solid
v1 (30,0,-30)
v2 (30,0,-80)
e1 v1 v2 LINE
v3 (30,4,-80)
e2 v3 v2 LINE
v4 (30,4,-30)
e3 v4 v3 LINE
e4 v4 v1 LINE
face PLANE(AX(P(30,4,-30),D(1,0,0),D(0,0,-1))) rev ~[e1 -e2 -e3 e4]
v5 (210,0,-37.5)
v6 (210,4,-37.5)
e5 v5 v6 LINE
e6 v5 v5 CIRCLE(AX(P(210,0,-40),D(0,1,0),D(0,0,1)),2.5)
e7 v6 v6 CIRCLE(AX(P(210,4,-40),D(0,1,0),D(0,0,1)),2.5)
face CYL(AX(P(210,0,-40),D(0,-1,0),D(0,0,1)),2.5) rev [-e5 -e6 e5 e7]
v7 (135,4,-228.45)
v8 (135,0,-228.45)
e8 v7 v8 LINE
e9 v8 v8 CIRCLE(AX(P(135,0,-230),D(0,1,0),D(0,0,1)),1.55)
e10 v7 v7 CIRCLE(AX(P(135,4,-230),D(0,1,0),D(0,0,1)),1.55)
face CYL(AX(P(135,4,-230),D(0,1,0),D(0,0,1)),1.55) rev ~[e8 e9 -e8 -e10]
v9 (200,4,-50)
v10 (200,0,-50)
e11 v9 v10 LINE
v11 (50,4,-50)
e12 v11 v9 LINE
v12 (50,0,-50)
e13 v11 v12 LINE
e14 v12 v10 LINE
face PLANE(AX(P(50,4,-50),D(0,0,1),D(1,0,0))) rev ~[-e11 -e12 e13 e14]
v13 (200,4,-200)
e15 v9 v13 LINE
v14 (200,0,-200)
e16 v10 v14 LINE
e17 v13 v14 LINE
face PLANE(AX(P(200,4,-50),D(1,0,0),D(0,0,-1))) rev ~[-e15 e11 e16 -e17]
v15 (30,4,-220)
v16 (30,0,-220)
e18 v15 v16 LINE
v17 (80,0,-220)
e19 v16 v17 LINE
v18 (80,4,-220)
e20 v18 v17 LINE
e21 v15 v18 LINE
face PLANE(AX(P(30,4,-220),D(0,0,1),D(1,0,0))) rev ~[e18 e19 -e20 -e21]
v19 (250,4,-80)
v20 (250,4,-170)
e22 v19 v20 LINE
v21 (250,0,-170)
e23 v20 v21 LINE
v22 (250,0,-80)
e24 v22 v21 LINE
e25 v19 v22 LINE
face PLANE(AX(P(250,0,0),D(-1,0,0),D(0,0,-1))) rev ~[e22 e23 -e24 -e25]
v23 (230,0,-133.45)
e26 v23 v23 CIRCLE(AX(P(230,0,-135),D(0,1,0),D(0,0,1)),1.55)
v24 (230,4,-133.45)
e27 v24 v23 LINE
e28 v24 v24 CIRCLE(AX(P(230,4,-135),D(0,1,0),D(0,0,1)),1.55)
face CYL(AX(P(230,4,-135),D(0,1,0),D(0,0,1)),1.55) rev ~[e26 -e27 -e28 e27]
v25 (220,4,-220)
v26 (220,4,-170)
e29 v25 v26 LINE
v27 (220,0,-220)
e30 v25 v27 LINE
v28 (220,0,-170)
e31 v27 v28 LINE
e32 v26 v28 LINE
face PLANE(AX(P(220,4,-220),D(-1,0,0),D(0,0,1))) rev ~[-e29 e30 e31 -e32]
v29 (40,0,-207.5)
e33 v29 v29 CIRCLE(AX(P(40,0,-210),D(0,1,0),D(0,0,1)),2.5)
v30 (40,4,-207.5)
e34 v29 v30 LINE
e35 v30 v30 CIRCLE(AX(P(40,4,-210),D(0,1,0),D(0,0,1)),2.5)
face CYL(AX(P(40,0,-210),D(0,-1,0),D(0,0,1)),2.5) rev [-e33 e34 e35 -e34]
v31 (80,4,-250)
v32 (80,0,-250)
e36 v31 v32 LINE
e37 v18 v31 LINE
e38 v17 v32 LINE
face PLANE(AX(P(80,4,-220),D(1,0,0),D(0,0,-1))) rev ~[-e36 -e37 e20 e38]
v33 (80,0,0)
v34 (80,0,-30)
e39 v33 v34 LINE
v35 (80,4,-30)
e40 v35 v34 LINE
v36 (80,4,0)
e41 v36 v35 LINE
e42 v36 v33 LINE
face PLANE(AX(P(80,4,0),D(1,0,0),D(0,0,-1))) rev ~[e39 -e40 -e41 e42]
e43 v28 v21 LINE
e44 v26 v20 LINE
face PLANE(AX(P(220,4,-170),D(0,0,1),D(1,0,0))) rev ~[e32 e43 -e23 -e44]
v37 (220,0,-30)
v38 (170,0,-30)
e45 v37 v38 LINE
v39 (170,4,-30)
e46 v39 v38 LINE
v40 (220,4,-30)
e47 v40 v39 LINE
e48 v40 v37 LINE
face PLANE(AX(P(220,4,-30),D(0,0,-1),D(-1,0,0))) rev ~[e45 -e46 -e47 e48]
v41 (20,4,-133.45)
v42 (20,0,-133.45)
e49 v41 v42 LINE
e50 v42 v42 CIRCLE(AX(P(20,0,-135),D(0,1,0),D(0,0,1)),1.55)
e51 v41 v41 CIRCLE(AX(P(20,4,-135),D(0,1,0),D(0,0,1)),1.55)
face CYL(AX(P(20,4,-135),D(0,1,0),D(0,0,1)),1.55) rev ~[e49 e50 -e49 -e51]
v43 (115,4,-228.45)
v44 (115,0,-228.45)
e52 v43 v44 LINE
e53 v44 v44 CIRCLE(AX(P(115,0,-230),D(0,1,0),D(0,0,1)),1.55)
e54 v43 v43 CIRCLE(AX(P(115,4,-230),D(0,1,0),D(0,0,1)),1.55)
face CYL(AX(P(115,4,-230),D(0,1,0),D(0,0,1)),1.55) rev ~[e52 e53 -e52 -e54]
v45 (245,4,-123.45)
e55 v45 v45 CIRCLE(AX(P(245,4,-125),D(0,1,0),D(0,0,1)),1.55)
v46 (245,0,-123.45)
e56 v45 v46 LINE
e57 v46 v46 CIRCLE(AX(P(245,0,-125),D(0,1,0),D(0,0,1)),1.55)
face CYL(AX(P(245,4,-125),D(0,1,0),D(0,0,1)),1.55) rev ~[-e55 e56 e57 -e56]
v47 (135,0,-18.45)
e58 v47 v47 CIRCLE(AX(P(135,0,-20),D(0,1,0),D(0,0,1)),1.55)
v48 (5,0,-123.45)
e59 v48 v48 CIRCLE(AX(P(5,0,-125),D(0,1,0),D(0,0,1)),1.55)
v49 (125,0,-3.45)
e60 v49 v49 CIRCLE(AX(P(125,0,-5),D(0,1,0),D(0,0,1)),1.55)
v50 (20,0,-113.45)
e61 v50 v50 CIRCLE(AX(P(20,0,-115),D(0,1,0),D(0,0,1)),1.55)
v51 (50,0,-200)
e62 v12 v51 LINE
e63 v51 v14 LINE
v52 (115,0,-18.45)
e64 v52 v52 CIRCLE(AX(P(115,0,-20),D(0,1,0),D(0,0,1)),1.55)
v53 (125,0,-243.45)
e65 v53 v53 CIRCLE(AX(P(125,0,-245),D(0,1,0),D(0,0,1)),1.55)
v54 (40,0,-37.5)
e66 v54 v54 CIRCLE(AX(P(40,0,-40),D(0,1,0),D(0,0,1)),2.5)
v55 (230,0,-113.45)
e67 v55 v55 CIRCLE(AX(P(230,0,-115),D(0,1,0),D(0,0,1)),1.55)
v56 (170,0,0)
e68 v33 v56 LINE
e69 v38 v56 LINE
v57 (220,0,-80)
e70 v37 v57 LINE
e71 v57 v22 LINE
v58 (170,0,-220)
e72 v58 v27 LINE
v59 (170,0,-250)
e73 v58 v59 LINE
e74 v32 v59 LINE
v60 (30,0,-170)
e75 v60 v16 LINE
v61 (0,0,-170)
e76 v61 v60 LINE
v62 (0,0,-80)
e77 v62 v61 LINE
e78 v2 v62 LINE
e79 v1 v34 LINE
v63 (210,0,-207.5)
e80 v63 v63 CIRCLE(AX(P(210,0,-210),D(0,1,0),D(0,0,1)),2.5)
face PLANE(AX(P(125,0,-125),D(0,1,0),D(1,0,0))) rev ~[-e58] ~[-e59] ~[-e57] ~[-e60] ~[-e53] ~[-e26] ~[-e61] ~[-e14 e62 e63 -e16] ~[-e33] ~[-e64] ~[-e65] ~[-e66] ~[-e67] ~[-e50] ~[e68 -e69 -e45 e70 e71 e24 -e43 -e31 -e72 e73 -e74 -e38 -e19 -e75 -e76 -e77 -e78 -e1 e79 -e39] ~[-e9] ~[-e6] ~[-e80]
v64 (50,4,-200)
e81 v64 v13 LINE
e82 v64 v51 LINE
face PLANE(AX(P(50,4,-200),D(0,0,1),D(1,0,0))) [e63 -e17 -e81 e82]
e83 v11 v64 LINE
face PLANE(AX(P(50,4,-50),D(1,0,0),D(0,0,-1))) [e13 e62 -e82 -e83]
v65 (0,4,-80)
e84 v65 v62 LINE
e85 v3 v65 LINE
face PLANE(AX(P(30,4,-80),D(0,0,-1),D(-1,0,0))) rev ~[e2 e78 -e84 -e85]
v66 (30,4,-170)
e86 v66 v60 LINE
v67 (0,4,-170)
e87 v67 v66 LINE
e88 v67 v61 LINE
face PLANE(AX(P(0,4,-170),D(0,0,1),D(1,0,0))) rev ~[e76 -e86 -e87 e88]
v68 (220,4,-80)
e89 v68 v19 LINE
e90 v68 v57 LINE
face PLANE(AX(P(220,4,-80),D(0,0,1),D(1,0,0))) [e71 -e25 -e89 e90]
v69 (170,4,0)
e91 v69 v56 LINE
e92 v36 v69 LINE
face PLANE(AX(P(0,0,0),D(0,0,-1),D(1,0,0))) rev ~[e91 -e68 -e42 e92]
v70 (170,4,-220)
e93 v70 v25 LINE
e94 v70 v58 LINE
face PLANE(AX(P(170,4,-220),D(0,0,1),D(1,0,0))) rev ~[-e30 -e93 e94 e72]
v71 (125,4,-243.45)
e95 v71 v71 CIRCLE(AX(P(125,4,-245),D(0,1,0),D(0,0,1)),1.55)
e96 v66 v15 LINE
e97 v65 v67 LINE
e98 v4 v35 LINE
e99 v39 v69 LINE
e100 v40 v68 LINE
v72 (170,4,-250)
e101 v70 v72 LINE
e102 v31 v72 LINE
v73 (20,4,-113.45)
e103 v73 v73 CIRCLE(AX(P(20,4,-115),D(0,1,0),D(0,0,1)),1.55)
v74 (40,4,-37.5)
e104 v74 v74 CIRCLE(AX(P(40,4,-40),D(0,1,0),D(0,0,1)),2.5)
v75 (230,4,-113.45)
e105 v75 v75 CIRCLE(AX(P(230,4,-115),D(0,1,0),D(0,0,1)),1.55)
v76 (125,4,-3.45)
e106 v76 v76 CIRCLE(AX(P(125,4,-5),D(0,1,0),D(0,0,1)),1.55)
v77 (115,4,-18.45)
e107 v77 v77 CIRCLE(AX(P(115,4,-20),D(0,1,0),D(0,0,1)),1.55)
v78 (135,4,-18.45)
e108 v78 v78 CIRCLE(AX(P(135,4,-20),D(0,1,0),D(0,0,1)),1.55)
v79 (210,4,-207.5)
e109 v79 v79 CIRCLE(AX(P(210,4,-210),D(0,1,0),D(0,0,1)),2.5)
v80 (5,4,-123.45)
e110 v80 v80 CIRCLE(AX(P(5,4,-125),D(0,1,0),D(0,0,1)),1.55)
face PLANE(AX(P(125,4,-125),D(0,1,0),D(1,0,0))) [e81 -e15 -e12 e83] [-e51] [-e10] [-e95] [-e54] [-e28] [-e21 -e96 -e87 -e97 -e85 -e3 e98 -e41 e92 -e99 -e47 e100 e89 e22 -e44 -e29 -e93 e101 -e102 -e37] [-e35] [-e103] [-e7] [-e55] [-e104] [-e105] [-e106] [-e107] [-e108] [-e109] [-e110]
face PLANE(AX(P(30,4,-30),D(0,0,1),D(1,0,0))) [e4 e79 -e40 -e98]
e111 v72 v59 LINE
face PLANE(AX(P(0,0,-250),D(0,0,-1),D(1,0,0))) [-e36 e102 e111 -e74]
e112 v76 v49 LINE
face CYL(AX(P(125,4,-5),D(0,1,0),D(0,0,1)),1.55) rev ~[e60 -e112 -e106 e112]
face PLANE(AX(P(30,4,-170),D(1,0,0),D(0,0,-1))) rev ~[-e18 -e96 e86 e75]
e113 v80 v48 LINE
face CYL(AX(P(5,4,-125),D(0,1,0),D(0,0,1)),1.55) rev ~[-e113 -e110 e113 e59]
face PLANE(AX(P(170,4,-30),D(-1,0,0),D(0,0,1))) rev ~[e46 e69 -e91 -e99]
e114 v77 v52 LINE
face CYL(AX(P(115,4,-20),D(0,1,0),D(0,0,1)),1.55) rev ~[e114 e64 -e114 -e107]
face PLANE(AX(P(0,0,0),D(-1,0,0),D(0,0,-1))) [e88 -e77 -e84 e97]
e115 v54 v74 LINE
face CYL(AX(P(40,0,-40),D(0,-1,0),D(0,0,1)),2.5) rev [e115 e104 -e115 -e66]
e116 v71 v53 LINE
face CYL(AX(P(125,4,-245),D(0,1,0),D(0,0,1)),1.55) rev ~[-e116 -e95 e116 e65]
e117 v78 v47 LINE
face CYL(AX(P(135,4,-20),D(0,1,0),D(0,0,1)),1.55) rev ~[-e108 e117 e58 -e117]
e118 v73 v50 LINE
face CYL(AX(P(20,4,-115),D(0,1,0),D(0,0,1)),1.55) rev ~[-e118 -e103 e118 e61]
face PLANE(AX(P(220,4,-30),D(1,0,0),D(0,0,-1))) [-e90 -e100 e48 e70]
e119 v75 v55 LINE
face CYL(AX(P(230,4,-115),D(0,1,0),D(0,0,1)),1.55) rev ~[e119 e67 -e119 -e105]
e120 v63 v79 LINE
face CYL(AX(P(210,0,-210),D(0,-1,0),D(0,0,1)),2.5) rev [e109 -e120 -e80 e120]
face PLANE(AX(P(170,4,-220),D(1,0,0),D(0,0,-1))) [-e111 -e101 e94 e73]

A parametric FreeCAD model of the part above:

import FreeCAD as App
import Part
import Sketcher

V = App.Vector


def add_polygon(sketch, points):
    """Adds a closed chain of lines whose ends are joined by coincident constraints."""
    first, n = sketch.GeometryCount, len(points)
    for a, b in zip(points, points[1:] + points[:1]):
        sketch.addGeometry(Part.LineSegment(App.Vector(*a, 0), App.Vector(*b, 0)), False)
    for i in range(n):
        sketch.addConstraint(Sketcher.Constraint("Coincident", first + i, 2, first + (i + 1) % n, 1))

doc = App.newDocument("Part")
body = doc.addObject("PartDesign::Body", "Body")

sketch1 = doc.addObject("Sketcher::SketchObject", "Sketch")
body.addObject(sketch1)
sketch1.AttachmentSupport = (doc.XZ_Plane, [""])
sketch1.MapMode = "FlatFace"
add_polygon(sketch1, [(0, -250), (0, 0), (250, 0), (250, -250)])
sketch1.addGeometry(Part.Circle(V(40, -40, 0), V(0, 0, 1), 2.5), False)
sketch1.addGeometry(Part.Circle(V(210, -40, 0), V(0, 0, 1), 2.5), False)
sketch1.addGeometry(Part.Circle(V(40, -210, 0), V(0, 0, 1), 2.5), False)
sketch1.addGeometry(Part.Circle(V(210, -210, 0), V(0, 0, 1), 2.5), False)
sketch1.addConstraint(Sketcher.Constraint("Vertical", 0))
sketch1.addConstraint(Sketcher.Constraint("Horizontal", 1))
sketch1.addConstraint(Sketcher.Constraint("Vertical", 2))
sketch1.addConstraint(Sketcher.Constraint("Horizontal", 3))
sketch1.addConstraint(Sketcher.Constraint("Coincident", 0, 2, -1, 1))
sketch1.addConstraint(Sketcher.Constraint("Equal", 4, 5))
sketch1.addConstraint(Sketcher.Constraint("Equal", 5, 6))
sketch1.addConstraint(Sketcher.Constraint("Equal", 6, 7))
sketch1.addConstraint(Sketcher.Constraint("Horizontal", 4, 3, 5, 3))
sketch1.addConstraint(Sketcher.Constraint("Horizontal", 6, 3, 7, 3))
sketch1.addConstraint(Sketcher.Constraint("Vertical", 4, 3, 6, 3))
sketch1.addConstraint(Sketcher.Constraint("Vertical", 5, 3, 7, 3))
sketch1.addConstraint(Sketcher.Constraint("Equal", 3, 0))
sketch1.addConstraint(Sketcher.Constraint("Diameter", 4, 5.0))
sketch1.addConstraint(Sketcher.Constraint("DistanceX", 1, 1, 1, 2, 250.0))
sketch1.addConstraint(Sketcher.Constraint("DistanceX", -1, 1, 4, 3, 40.0))
sketch1.addConstraint(Sketcher.Constraint("DistanceY", 4, 3, -1, 1, 40.0))
sketch1.addConstraint(Sketcher.Constraint("DistanceX", -1, 1, 5, 3, 210.0))
sketch1.addConstraint(Sketcher.Constraint("DistanceY", 6, 3, -1, 1, 210.0))
pad1 = doc.addObject("PartDesign::Pad", "Pad")
body.addObject(pad1)
pad1.Profile = sketch1
pad1.Length = 4
pad1.Reversed = True

sketch2 = doc.addObject("Sketcher::SketchObject", "Sketch001")
body.addObject(sketch2)
sketch2.AttachmentSupport = (doc.XZ_Plane, [""])
sketch2.MapMode = "FlatFace"
sketch2.AttachmentOffset = App.Placement(V(0, 0, -4), App.Rotation())
add_polygon(sketch2, [(50, -50), (200, -50), (200, -200), (50, -200)])
sketch2.addConstraint(Sketcher.Constraint("Horizontal", 0))
sketch2.addConstraint(Sketcher.Constraint("Vertical", 1))
sketch2.addConstraint(Sketcher.Constraint("Horizontal", 2))
sketch2.addConstraint(Sketcher.Constraint("Vertical", 3))
sketch2.addConstraint(Sketcher.Constraint("Equal", 2, 1))
sketch2.addConstraint(Sketcher.Constraint("DistanceX", 0, 1, 0, 2, 150.0))
sketch2.addConstraint(Sketcher.Constraint("DistanceX", -1, 1, 0, 2, 200.0))
sketch2.addConstraint(Sketcher.Constraint("DistanceY", 0, 2, -1, 1, 50.0))
pocket1 = doc.addObject("PartDesign::Pocket", "Pocket")
body.addObject(pocket1)
pocket1.Profile = sketch2
pocket1.Length = 4
pocket1.Reversed = True

sketch3 = doc.addObject("Sketcher::SketchObject", "Sketch002")
body.addObject(sketch3)
sketch3.AttachmentSupport = (doc.XZ_Plane, [""])
sketch3.MapMode = "FlatFace"
sketch3.AttachmentOffset = App.Placement(V(0, 0, -4), App.Rotation())
add_polygon(sketch3, [(50, -200), (50, -50), (200, -50), (200, -200)])
add_polygon(sketch3, [(175, -75), (75, -75), (75, -175), (175, -175)])
sketch3.addConstraint(Sketcher.Constraint("Vertical", 0))
sketch3.addConstraint(Sketcher.Constraint("Horizontal", 1))
sketch3.addConstraint(Sketcher.Constraint("Vertical", 2))
sketch3.addConstraint(Sketcher.Constraint("Horizontal", 3))
sketch3.addConstraint(Sketcher.Constraint("Horizontal", 4))
sketch3.addConstraint(Sketcher.Constraint("Vertical", 5))
sketch3.addConstraint(Sketcher.Constraint("Horizontal", 6))
sketch3.addConstraint(Sketcher.Constraint("Vertical", 7))
sketch3.addConstraint(Sketcher.Constraint("Equal", 3, 0))
sketch3.addConstraint(Sketcher.Constraint("Equal", 6, 5))
sketch3.addConstraint(Sketcher.Constraint("DistanceX", 1, 1, 1, 2, 150.0))
sketch3.addConstraint(Sketcher.Constraint("DistanceX", 4, 2, 4, 1, 100.0))
sketch3.addConstraint(Sketcher.Constraint("DistanceX", -1, 1, 0, 2, 50.0))
sketch3.addConstraint(Sketcher.Constraint("DistanceY", 0, 2, -1, 1, 50.0))
sketch3.addConstraint(Sketcher.Constraint("DistanceX", -1, 1, 4, 2, 75.0))
sketch3.addConstraint(Sketcher.Constraint("DistanceY", 4, 2, -1, 1, 75.0))
pad2 = doc.addObject("PartDesign::Pad", "Pad001")
body.addObject(pad2)
pad2.Profile = sketch3
pad2.Length = 4

sketch4 = doc.addObject("Sketcher::SketchObject", "Sketch003")
body.addObject(sketch4)
sketch4.AttachmentSupport = (doc.XZ_Plane, [""])
sketch4.MapMode = "FlatFace"
sketch4.AttachmentOffset = App.Placement(V(0, 0, -4), App.Rotation())
sketch4.addGeometry(Part.Circle(V(115, -20, 0), V(0, 0, 1), 1.6), False)
sketch4.addGeometry(Part.Circle(V(135, -20, 0), V(0, 0, 1), 1.6), False)
sketch4.addGeometry(Part.Circle(V(125, -5, 0), V(0, 0, 1), 1.6), False)
sketch4.addConstraint(Sketcher.Constraint("Equal", 0, 1))
sketch4.addConstraint(Sketcher.Constraint("Equal", 1, 2))
sketch4.addConstraint(Sketcher.Constraint("Horizontal", 0, 3, 1, 3))
sketch4.addConstraint(Sketcher.Constraint("Diameter", 0, 3.1))
sketch4.addConstraint(Sketcher.Constraint("DistanceX", -1, 1, 0, 3, 115.0))
sketch4.addConstraint(Sketcher.Constraint("DistanceY", 0, 3, -1, 1, 20.0))
sketch4.addConstraint(Sketcher.Constraint("DistanceX", -1, 1, 1, 3, 135.0))
sketch4.addConstraint(Sketcher.Constraint("DistanceX", -1, 1, 2, 3, 125.0))
sketch4.addConstraint(Sketcher.Constraint("DistanceY", 2, 3, -1, 1, 5.0))
pocket2 = doc.addObject("PartDesign::Pocket", "Pocket001")
body.addObject(pocket2)
pocket2.Profile = sketch4
pocket2.Length = 10
pocket2.Reversed = True

sketch5 = doc.addObject("Sketcher::SketchObject", "Sketch004")
body.addObject(sketch5)
sketch5.AttachmentSupport = (doc.XZ_Plane, [""])
sketch5.MapMode = "FlatFace"
sketch5.AttachmentOffset = App.Placement(V(0, 0, -4), App.Rotation())
add_polygon(sketch5, [(50, -200), (50, -50), (200, -50), (200, -200)])
add_polygon(sketch5, [(175, -75), (75, -75), (75, -175), (175, -175)])
sketch5.addConstraint(Sketcher.Constraint("Vertical", 0))
sketch5.addConstraint(Sketcher.Constraint("Horizontal", 1))
sketch5.addConstraint(Sketcher.Constraint("Vertical", 2))
sketch5.addConstraint(Sketcher.Constraint("Horizontal", 3))
sketch5.addConstraint(Sketcher.Constraint("Horizontal", 4))
sketch5.addConstraint(Sketcher.Constraint("Vertical", 5))
sketch5.addConstraint(Sketcher.Constraint("Horizontal", 6))
sketch5.addConstraint(Sketcher.Constraint("Vertical", 7))
sketch5.addConstraint(Sketcher.Constraint("Equal", 3, 0))
sketch5.addConstraint(Sketcher.Constraint("Equal", 6, 5))
sketch5.addConstraint(Sketcher.Constraint("DistanceX", 1, 1, 1, 2, 150.0))
sketch5.addConstraint(Sketcher.Constraint("DistanceX", 4, 2, 4, 1, 100.0))
sketch5.addConstraint(Sketcher.Constraint("DistanceX", -1, 1, 0, 2, 50.0))
sketch5.addConstraint(Sketcher.Constraint("DistanceY", 0, 2, -1, 1, 50.0))
sketch5.addConstraint(Sketcher.Constraint("DistanceX", -1, 1, 4, 2, 75.0))
sketch5.addConstraint(Sketcher.Constraint("DistanceY", 4, 2, -1, 1, 75.0))
pocket3 = doc.addObject("PartDesign::Pocket", "Pocket002")
body.addObject(pocket3)
pocket3.Profile = sketch5
pocket3.Length = 10
pocket3.Reversed = True

sketch6 = doc.addObject("Sketcher::SketchObject", "Sketch005")
body.addObject(sketch6)
sketch6.AttachmentSupport = (doc.XZ_Plane, [""])
sketch6.MapMode = "FlatFace"
sketch6.AttachmentOffset = App.Placement(V(0, 0, -4), App.Rotation())
add_polygon(sketch6, [(170, 0), (250, 0), (250, -80), (220, -80), (220, -30), (170, -30)])
add_polygon(sketch6, [(0, -80), (0, 0), (80, 0), (80, -30), (30, -30), (30, -80)])
add_polygon(sketch6, [(80, -250), (0, -250), (0, -170), (30, -170), (30, -220), (80, -220)])
add_polygon(sketch6, [(250, -170), (250, -250), (170, -250), (170, -220), (220, -220), (220, -170)])
sketch6.addConstraint(Sketcher.Constraint("Horizontal", 0))
sketch6.addConstraint(Sketcher.Constraint("Vertical", 1))
sketch6.addConstraint(Sketcher.Constraint("Horizontal", 2))
sketch6.addConstraint(Sketcher.Constraint("Vertical", 3))
sketch6.addConstraint(Sketcher.Constraint("Horizontal", 4))
sketch6.addConstraint(Sketcher.Constraint("Vertical", 5))
sketch6.addConstraint(Sketcher.Constraint("Vertical", 6))
sketch6.addConstraint(Sketcher.Constraint("Horizontal", 7))
sketch6.addConstraint(Sketcher.Constraint("Vertical", 8))
sketch6.addConstraint(Sketcher.Constraint("Horizontal", 9))
sketch6.addConstraint(Sketcher.Constraint("Vertical", 10))
sketch6.addConstraint(Sketcher.Constraint("Horizontal", 11))
sketch6.addConstraint(Sketcher.Constraint("Horizontal", 12))
sketch6.addConstraint(Sketcher.Constraint("Vertical", 13))
sketch6.addConstraint(Sketcher.Constraint("Horizontal", 14))
sketch6.addConstraint(Sketcher.Constraint("Vertical", 15))
sketch6.addConstraint(Sketcher.Constraint("Horizontal", 16))
sketch6.addConstraint(Sketcher.Constraint("Vertical", 17))
sketch6.addConstraint(Sketcher.Constraint("Vertical", 18))
sketch6.addConstraint(Sketcher.Constraint("Horizontal", 19))
sketch6.addConstraint(Sketcher.Constraint("Vertical", 20))
sketch6.addConstraint(Sketcher.Constraint("Horizontal", 21))
sketch6.addConstraint(Sketcher.Constraint("Vertical", 22))
sketch6.addConstraint(Sketcher.Constraint("Horizontal", 23))
sketch6.addConstraint(Sketcher.Constraint("Coincident", 6, 2, -1, 1))
sketch6.addConstraint(Sketcher.Constraint("PointOnObject", 0, 2, -1))
sketch6.addConstraint(Sketcher.Constraint("PointOnObject", 12, 2, -2))
sketch6.addConstraint(Sketcher.Constraint("Horizontal", 4, 2, 8, 2))
sketch6.addConstraint(Sketcher.Constraint("Horizontal", 2, 2, 10, 2))
sketch6.addConstraint(Sketcher.Constraint("Horizontal", 17, 2, 18, 2))
sketch6.addConstraint(Sketcher.Constraint("Horizontal", 16, 2, 20, 2))
sketch6.addConstraint(Sketcher.Constraint("Horizontal", 14, 2, 22, 2))
sketch6.addConstraint(Sketcher.Constraint("Vertical", 10, 2, 14, 2))
sketch6.addConstraint(Sketcher.Constraint("Vertical", 8, 2, 16, 2))
sketch6.addConstraint(Sketcher.Constraint("Vertical", 1, 2, 18, 2))
sketch6.addConstraint(Sketcher.Constraint("Vertical", 5, 2, 19, 2))
sketch6.addConstraint(Sketcher.Constraint("Vertical", 3, 2, 21, 2))
sketch6.addConstraint(Sketcher.Constraint("Equal", 0, 7))
sketch6.addConstraint(Sketcher.Constraint("Equal", 4, 9))
sketch6.addConstraint(Sketcher.Constraint("Equal", 19, 1))
sketch6.addConstraint(Sketcher.Constraint("Equal", 21, 3))
sketch6.addConstraint(Sketcher.Constraint("Equal", 6, 13))
sketch6.addConstraint(Sketcher.Constraint("Equal", 10, 15))
sketch6.addConstraint(Sketcher.Constraint("DistanceX", 0, 1, 0, 2, 80.0))
sketch6.addConstraint(Sketcher.Constraint("DistanceX", 2, 2, 2, 1, 30.0))
sketch6.addConstraint(Sketcher.Constraint("DistanceX", -1, 1, 0, 2, 250.0))
sketch6.addConstraint(Sketcher.Constraint("DistanceY", 12, 2, -1, 1, 250.0))
pocket4 = doc.addObject("PartDesign::Pocket", "Pocket003")
body.addObject(pocket4)
pocket4.Profile = sketch6
pocket4.Length = 10
pocket4.Reversed = True

sketch7 = doc.addObject("Sketcher::SketchObject", "Sketch006")
body.addObject(sketch7)
sketch7.AttachmentSupport = (doc.XZ_Plane, [""])
sketch7.MapMode = "FlatFace"
sketch7.AttachmentOffset = App.Placement(V(0, 0, -4), App.Rotation())
sketch7.addGeometry(Part.Circle(V(125, -5, 0), V(0, 0, 1), 1.6), False)
sketch7.addGeometry(Part.Circle(V(135, -20, 0), V(0, 0, 1), 1.6), False)
sketch7.addGeometry(Part.Circle(V(115, -20, 0), V(0, 0, 1), 1.6), False)
sketch7.addGeometry(Part.Circle(V(20, -135, 0), V(0, 0, 1), 1.6), False)
sketch7.addGeometry(Part.Circle(V(5, -125, 0), V(0, 0, 1), 1.6), False)
sketch7.addGeometry(Part.Circle(V(20, -115, 0), V(0, 0, 1), 1.6), False)
sketch7.addGeometry(Part.Circle(V(135, -230, 0), V(0, 0, 1), 1.6), False)
sketch7.addGeometry(Part.Circle(V(125, -245, 0), V(0, 0, 1), 1.6), False)
sketch7.addGeometry(Part.Circle(V(115, -230, 0), V(0, 0, 1), 1.6), False)
sketch7.addGeometry(Part.Circle(V(230, -115, 0), V(0, 0, 1), 1.6), False)
sketch7.addGeometry(Part.Circle(V(245, -125, 0), V(0, 0, 1), 1.6), False)
sketch7.addGeometry(Part.Circle(V(230, -135, 0), V(0, 0, 1), 1.6), False)
sketch7.addConstraint(Sketcher.Constraint("Equal", 0, 1))
sketch7.addConstraint(Sketcher.Constraint("Equal", 1, 2))
sketch7.addConstraint(Sketcher.Constraint("Equal", 2, 3))
sketch7.addConstraint(Sketcher.Constraint("Equal", 3, 4))
sketch7.addConstraint(Sketcher.Constraint("Equal", 4, 5))
sketch7.addConstraint(Sketcher.Constraint("Equal", 5, 6))
sketch7.addConstraint(Sketcher.Constraint("Equal", 6, 7))
sketch7.addConstraint(Sketcher.Constraint("Equal", 7, 8))
sketch7.addConstraint(Sketcher.Constraint("Equal", 8, 9))
sketch7.addConstraint(Sketcher.Constraint("Equal", 9, 10))
sketch7.addConstraint(Sketcher.Constraint("Equal", 10, 11))
sketch7.addConstraint(Sketcher.Constraint("Horizontal", 1, 3, 2, 3))
sketch7.addConstraint(Sketcher.Constraint("Horizontal", 6, 3, 8, 3))
sketch7.addConstraint(Sketcher.Constraint("Horizontal", 5, 3, 9, 3))
sketch7.addConstraint(Sketcher.Constraint("Horizontal", 4, 3, 10, 3))
sketch7.addConstraint(Sketcher.Constraint("Horizontal", 3, 3, 11, 3))
sketch7.addConstraint(Sketcher.Constraint("Vertical", 3, 3, 5, 3))
sketch7.addConstraint(Sketcher.Constraint("Vertical", 1, 3, 6, 3))
sketch7.addConstraint(Sketcher.Constraint("Vertical", 0, 3, 7, 3))
sketch7.addConstraint(Sketcher.Constraint("Vertical", 2, 3, 8, 3))
sketch7.addConstraint(Sketcher.Constraint("Vertical", 9, 3, 11, 3))
sketch7.addConstraint(Sketcher.Constraint("Diameter", 0, 3.1))
sketch7.addConstraint(Sketcher.Constraint("DistanceX", -1, 1, 0, 3, 125.0))
sketch7.addConstraint(Sketcher.Constraint("DistanceY", 0, 3, -1, 1, 5.0))
sketch7.addConstraint(Sketcher.Constraint("DistanceX", -1, 1, 1, 3, 135.0))
sketch7.addConstraint(Sketcher.Constraint("DistanceY", 1, 3, -1, 1, 20.0))
sketch7.addConstraint(Sketcher.Constraint("DistanceX", -1, 1, 2, 3, 115.0))
sketch7.addConstraint(Sketcher.Constraint("DistanceX", -1, 1, 3, 3, 20.0))
sketch7.addConstraint(Sketcher.Constraint("DistanceY", 3, 3, -1, 1, 135.0))
sketch7.addConstraint(Sketcher.Constraint("DistanceX", -1, 1, 4, 3, 5.0))
sketch7.addConstraint(Sketcher.Constraint("DistanceY", 4, 3, -1, 1, 125.0))
sketch7.addConstraint(Sketcher.Constraint("DistanceY", 5, 3, -1, 1, 115.0))
sketch7.addConstraint(Sketcher.Constraint("DistanceY", 6, 3, -1, 1, 230.0))
sketch7.addConstraint(Sketcher.Constraint("DistanceY", 7, 3, -1, 1, 245.0))
sketch7.addConstraint(Sketcher.Constraint("DistanceX", -1, 1, 9, 3, 230.0))
sketch7.addConstraint(Sketcher.Constraint("DistanceX", -1, 1, 10, 3, 245.0))
pocket5 = doc.addObject("PartDesign::Pocket", "Pocket004")
body.addObject(pocket5)
pocket5.Profile = sketch7
pocket5.Length = 10
pocket5.Reversed = True

doc.recompute()
